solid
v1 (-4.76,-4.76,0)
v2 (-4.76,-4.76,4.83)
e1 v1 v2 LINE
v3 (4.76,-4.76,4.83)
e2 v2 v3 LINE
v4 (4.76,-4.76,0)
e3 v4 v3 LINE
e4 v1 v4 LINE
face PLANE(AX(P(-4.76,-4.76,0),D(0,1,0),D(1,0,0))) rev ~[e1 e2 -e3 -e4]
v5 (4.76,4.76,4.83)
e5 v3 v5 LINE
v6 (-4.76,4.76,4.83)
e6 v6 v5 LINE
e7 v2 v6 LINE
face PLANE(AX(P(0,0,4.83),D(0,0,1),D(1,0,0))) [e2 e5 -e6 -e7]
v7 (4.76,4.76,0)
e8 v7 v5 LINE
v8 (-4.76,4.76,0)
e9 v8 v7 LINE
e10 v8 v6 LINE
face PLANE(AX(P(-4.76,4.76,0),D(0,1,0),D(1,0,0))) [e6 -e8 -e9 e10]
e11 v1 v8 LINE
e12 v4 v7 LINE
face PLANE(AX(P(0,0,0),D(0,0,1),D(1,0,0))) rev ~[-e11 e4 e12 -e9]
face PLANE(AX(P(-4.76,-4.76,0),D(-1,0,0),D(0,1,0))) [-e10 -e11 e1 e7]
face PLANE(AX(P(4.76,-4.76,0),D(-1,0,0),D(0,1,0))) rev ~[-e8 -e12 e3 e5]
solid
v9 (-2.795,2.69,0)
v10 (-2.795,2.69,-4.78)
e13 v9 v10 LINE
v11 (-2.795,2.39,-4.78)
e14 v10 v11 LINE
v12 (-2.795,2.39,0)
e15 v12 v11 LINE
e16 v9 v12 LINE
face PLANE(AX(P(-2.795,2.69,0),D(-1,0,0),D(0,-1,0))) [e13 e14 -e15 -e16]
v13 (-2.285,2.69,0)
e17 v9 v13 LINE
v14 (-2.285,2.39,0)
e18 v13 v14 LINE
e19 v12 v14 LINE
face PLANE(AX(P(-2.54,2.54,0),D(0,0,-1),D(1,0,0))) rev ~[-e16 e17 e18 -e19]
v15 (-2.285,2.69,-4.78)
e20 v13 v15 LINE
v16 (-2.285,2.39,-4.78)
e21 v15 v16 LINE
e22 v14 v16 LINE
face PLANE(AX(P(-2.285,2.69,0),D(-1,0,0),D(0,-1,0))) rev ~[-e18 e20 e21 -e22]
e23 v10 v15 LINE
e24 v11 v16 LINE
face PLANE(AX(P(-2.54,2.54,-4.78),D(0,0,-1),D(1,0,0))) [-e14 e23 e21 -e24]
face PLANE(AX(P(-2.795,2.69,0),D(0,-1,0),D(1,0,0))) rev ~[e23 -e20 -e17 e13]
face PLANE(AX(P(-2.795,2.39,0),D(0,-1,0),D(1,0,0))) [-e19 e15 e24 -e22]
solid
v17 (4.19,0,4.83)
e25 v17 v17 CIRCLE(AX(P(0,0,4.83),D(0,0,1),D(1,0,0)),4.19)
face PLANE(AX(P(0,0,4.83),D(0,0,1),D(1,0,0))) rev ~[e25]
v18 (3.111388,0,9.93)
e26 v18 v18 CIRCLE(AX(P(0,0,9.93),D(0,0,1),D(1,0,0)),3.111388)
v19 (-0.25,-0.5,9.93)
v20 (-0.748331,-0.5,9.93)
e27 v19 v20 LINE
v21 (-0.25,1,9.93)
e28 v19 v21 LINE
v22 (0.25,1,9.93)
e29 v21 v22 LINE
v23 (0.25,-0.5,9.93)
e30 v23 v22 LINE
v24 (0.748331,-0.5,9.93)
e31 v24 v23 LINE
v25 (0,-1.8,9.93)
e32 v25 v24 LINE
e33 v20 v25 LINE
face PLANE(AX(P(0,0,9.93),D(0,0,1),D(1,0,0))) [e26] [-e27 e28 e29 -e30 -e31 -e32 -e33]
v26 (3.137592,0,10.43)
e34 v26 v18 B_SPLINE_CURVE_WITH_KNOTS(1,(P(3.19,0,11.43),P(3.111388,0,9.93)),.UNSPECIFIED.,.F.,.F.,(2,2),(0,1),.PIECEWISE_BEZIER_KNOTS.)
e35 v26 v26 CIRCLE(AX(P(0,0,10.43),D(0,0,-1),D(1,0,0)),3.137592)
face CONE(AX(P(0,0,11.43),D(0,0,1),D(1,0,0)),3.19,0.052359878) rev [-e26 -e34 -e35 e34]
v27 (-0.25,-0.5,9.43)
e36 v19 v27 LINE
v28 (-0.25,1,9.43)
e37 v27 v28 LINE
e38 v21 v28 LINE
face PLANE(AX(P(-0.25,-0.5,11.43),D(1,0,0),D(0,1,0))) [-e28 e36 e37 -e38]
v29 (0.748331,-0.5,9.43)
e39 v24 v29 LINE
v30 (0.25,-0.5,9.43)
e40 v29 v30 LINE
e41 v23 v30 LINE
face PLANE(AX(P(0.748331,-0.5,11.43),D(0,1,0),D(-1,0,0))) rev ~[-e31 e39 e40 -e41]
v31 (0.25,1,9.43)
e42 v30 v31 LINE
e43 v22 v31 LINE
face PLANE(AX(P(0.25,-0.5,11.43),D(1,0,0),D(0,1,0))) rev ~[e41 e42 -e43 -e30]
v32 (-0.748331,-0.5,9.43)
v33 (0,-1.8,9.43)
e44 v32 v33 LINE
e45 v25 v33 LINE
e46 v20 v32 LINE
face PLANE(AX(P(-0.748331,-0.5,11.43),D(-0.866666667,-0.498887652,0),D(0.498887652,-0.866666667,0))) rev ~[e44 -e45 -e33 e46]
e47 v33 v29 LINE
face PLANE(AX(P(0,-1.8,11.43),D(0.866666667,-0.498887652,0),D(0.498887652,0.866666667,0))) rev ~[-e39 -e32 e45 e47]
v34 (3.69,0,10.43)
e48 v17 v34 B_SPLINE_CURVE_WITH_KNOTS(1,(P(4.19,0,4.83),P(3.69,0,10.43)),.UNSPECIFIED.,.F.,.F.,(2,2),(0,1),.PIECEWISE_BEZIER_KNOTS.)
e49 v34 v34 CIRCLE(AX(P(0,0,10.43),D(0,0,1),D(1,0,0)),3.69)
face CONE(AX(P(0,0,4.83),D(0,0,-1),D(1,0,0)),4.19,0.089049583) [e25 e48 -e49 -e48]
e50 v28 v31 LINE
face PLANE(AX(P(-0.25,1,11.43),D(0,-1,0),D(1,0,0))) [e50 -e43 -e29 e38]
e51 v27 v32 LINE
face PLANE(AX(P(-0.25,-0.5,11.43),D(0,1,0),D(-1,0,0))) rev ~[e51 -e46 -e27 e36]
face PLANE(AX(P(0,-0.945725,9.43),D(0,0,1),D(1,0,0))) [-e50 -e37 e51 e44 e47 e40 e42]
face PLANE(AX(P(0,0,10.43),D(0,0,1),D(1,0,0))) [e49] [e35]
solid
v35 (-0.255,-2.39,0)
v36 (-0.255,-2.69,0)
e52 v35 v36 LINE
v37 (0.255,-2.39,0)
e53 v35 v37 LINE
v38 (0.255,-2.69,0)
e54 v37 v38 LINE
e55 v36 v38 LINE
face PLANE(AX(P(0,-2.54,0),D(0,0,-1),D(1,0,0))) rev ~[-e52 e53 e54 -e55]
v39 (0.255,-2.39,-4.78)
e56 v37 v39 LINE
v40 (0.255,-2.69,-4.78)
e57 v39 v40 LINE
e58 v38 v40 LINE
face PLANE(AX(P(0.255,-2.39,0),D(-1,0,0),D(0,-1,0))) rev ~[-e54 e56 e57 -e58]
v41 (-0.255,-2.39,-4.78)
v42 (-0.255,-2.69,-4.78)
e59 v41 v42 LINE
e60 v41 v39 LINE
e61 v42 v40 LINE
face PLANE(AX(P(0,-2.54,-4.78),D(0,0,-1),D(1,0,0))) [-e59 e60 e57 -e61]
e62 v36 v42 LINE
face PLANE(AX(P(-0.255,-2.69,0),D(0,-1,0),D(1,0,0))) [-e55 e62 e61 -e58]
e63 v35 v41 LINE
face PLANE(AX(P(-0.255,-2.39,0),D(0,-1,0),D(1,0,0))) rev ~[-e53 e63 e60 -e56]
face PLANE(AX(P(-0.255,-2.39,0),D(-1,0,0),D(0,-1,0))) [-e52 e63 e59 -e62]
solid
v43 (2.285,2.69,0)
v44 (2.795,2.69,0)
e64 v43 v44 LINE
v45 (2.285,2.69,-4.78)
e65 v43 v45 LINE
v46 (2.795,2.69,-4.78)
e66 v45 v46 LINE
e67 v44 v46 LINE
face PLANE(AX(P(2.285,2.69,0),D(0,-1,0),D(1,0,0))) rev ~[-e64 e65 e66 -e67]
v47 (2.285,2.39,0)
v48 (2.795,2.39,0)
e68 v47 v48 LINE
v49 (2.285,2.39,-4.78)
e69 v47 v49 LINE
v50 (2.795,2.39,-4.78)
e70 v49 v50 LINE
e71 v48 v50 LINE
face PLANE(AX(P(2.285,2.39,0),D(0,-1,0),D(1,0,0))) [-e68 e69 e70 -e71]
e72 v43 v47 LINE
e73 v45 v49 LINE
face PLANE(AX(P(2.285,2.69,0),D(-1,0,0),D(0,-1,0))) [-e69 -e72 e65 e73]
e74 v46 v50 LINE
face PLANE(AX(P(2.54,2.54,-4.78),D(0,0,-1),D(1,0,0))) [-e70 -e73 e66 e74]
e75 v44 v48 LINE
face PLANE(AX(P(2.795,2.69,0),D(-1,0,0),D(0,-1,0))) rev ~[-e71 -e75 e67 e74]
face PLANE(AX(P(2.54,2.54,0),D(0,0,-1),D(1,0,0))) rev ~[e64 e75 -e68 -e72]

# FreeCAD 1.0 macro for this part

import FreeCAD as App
import Part
import Sketcher
from FreeCAD import Vector


def add_polygon(sketch, points):
    """Adds a closed chain of lines whose ends are joined by coincident constraints."""
    first, n = sketch.GeometryCount, len(points)
    for a, b in zip(points, points[1:] + points[:1]):
        sketch.addGeometry(Part.LineSegment(App.Vector(*a, 0), App.Vector(*b, 0)), False)
    for i in range(n):
        sketch.addConstraint(Sketcher.Constraint("Coincident", first + i, 2, first + (i + 1) % n, 1))

doc = App.newDocument("Part")
body = doc.addObject("PartDesign::Body", "Body")

sketch1 = body.newObject("Sketcher::SketchObject", "Sketch")
sketch1.AttachmentSupport = (doc.getObject("XY_Plane"), [""])
sketch1.MapMode = "FlatFace"
add_polygon(sketch1, [(-5, 5), (-5, -5), (5, -5), (5, 5)])
sketch1.addConstraint(Sketcher.Constraint("Vertical", 0))
sketch1.addConstraint(Sketcher.Constraint("Horizontal", 1))
sketch1.addConstraint(Sketcher.Constraint("Vertical", 2))
sketch1.addConstraint(Sketcher.Constraint("Horizontal", 3))
sketch1.addConstraint(Sketcher.Constraint("Symmetric", 0, 2, 2, 2, -1, 1))
sketch1.addConstraint(Sketcher.Constraint("Equal", 3, 0))
sketch1.addConstraint(Sketcher.Constraint("DistanceX", 1, 1, 1, 2, 9.52))
pad1 = body.newObject("PartDesign::Pad", "Pad")
pad1.Profile = sketch1
pad1.Length = 4.83
body2 = doc.addObject("PartDesign::Body", "Body001")

sketch2 = body2.newObject("Sketcher::SketchObject", "Sketch001")
sketch2.AttachmentSupport = (doc.getObject("XY_Plane001"), [""])
sketch2.MapMode = "FlatFace"
sketch2.AttachmentOffset = App.Placement(Vector(0, 0, 4.83), App.Rotation())
sketch2.addGeometry(Part.Circle(Vector(0, 0, 0), Vector(0, 0, 1), 4.2), False)
sketch2.addConstraint(Sketcher.Constraint("Coincident", 0, 3, -1, 1))
sketch2.addConstraint(Sketcher.Constraint("Diameter", 0, 8.38))

sketch3 = body2.newObject("Sketcher::SketchObject", "Sketch002")
sketch3.AttachmentSupport = (doc.getObject("XY_Plane001"), [""])
sketch3.MapMode = "FlatFace"
sketch3.AttachmentOffset = App.Placement(Vector(0, 0, 10.43), App.Rotation())
sketch3.addGeometry(Part.Circle(Vector(0, 0, 0), Vector(0, 0, 1), 3.7), False)
sketch3.addConstraint(Sketcher.Constraint("Coincident", 0, 3, -1, 1))
sketch3.addConstraint(Sketcher.Constraint("Diameter", 0, 7.38))

additiveloft = body2.newObject("PartDesign::AdditiveLoft", "AdditiveLoft")
additiveloft.Profile = sketch2
additiveloft.Sections = [sketch3]

sketch4 = body2.newObject("Sketcher::SketchObject", "Sketch003")
sketch4.AttachmentSupport = (doc.getObject("XY_Plane001"), [""])
sketch4.MapMode = "FlatFace"
sketch4.AttachmentOffset = App.Placement(Vector(0, 0, 11.43), App.Rotation())
sketch4.addGeometry(Part.Circle(Vector(0, 0, 0), Vector(0, 0, 1), 3.2), False)
sketch4.addConstraint(Sketcher.Constraint("Coincident", 0, 3, -1, 1))
sketch4.addConstraint(Sketcher.Constraint("Diameter", 0, 6.38))
pocket1 = body2.newObject("PartDesign::Pocket", "Pocket")
pocket1.Profile = sketch4
pocket1.Length = 1.5
pocket1.TaperAngle = -3

sketch5 = body2.newObject("Sketcher::SketchObject", "Sketch004")
sketch5.AttachmentSupport = (doc.getObject("XY_Plane001"), [""])
sketch5.MapMode = "FlatFace"
sketch5.AttachmentOffset = App.Placement(Vector(0, 0, 11.43), App.Rotation())
add_polygon(sketch5, [(-0.25, -0.5), (-0.75, -0.5), (0, -1.8), (0.75, -0.5), (0.25, -0.5), (0.25, 1), (-0.25, 1)])
sketch5.addConstraint(Sketcher.Constraint("Horizontal", 0))
sketch5.addConstraint(Sketcher.Constraint("Horizontal", 3))
sketch5.addConstraint(Sketcher.Constraint("Vertical", 4))
sketch5.addConstraint(Sketcher.Constraint("Horizontal", 5))
sketch5.addConstraint(Sketcher.Constraint("Vertical", 6))
sketch5.addConstraint(Sketcher.Constraint("Symmetric", 0, 2, 2, 2, -2))
sketch5.addConstraint(Sketcher.Constraint("PointOnObject", 1, 2, -2))
sketch5.addConstraint(Sketcher.Constraint("Equal", 0, 3))
sketch5.addConstraint(Sketcher.Constraint("DistanceX", 5, 2, 5, 1, 0.5))
sketch5.addConstraint(Sketcher.Constraint("DistanceY", 4, 1, 4, 2, 1.5))
sketch5.addConstraint(Sketcher.Constraint("DistanceY", -1, 1, 4, 2, 1.0))
sketch5.addConstraint(Sketcher.Constraint("Distance", 1, 1.5))
sketch5.addConstraint(Sketcher.Constraint("DistanceY", 1, 2, -1, 1, 1.8))
pocket2 = body2.newObject("PartDesign::Pocket", "Pocket001")
pocket2.Profile = sketch5
pocket2.Length = 2
body3 = doc.addObject("PartDesign::Body", "Body002")

sketch6 = body3.newObject("Sketcher::SketchObject", "Sketch005")
sketch6.AttachmentSupport = (doc.getObject("XY_Plane002"), [""])
sketch6.MapMode = "FlatFace"
add_polygon(sketch6, [(-2.79, 2.39), (-2.79, 2.69), (-2.29, 2.69), (-2.29, 2.39)])
sketch6.addConstraint(Sketcher.Constraint("Vertical", 0))
sketch6.addConstraint(Sketcher.Constraint("Horizontal", 1))
sketch6.addConstraint(Sketcher.Constraint("Vertical", 2))
sketch6.addConstraint(Sketcher.Constraint("Horizontal", 3))
sketch6.addConstraint(Sketcher.Constraint("DistanceY", 0, 1, 0, 2, 0.3))
sketch6.addConstraint(Sketcher.Constraint("DistanceX", 1, 1, 1, 2, 0.51))
sketch6.addConstraint(Sketcher.Constraint("DistanceY", -1, 1, 0, 2, 2.69))
sketch6.addConstraint(Sketcher.Constraint("DistanceX", 0, 2, -1, 1, 2.795))
pad2 = body3.newObject("PartDesign::Pad", "Pad001")
pad2.Profile = sketch6
pad2.Length = 4.78
pad2.Reversed = True
body4 = doc.addObject("PartDesign::Body", "Body003")

sketch7 = body4.newObject("Sketcher::SketchObject", "Sketch006")
sketch7.AttachmentSupport = (doc.getObject("XY_Plane003"), [""])
sketch7.MapMode = "FlatFace"
add_polygon(sketch7, [(2.29, 2.39), (2.29, 2.69), (2.79, 2.69), (2.79, 2.39)])
sketch7.addConstraint(Sketcher.Constraint("Vertical", 0))
sketch7.addConstraint(Sketcher.Constraint("Horizontal", 1))
sketch7.addConstraint(Sketcher.Constraint("Vertical", 2))
sketch7.addConstraint(Sketcher.Constraint("Horizontal", 3))
sketch7.addConstraint(Sketcher.Constraint("DistanceY", 0, 1, 0, 2, 0.3))
sketch7.addConstraint(Sketcher.Constraint("DistanceX", 1, 1, 1, 2, 0.51))
sketch7.addConstraint(Sketcher.Constraint("DistanceY", -1, 1, 0, 2, 2.69))
sketch7.addConstraint(Sketcher.Constraint("DistanceX", -1, 1, 0, 2, 2.285))
pad3 = body4.newObject("PartDesign::Pad", "Pad002")
pad3.Profile = sketch7
pad3.Length = 4.78
pad3.Reversed = True
body5 = doc.addObject("PartDesign::Body", "Body004")

sketch8 = body5.newObject("Sketcher::SketchObject", "Sketch007")
sketch8.AttachmentSupport = (doc.getObject("XY_Plane004"), [""])
sketch8.MapMode = "FlatFace"
add_polygon(sketch8, [(-0.26, -2.69), (-0.26, -2.39), (0.26, -2.39), (0.26, -2.69)])
sketch8.addConstraint(Sketcher.Constraint("Vertical", 0))
sketch8.addConstraint(Sketcher.Constraint("Horizontal", 1))
sketch8.addConstraint(Sketcher.Constraint("Vertical", 2))
sketch8.addConstraint(Sketcher.Constraint("Horizontal", 3))
sketch8.addConstraint(Sketcher.Constraint("DistanceY", 0, 1, 0, 2, 0.3))
sketch8.addConstraint(Sketcher.Constraint("DistanceX", 1, 1, 1, 2, 0.51))
sketch8.addConstraint(Sketcher.Constraint("DistanceY", 0, 2, -1, 1, 2.39))
sketch8.addConstraint(Sketcher.Constraint("DistanceX", 0, 2, -1, 1, 0.255))
pad4 = body5.newObject("PartDesign::Pad", "Pad003")
pad4.Profile = sketch8
pad4.Length = 4.78
pad4.Reversed = True

doc.recompute()
